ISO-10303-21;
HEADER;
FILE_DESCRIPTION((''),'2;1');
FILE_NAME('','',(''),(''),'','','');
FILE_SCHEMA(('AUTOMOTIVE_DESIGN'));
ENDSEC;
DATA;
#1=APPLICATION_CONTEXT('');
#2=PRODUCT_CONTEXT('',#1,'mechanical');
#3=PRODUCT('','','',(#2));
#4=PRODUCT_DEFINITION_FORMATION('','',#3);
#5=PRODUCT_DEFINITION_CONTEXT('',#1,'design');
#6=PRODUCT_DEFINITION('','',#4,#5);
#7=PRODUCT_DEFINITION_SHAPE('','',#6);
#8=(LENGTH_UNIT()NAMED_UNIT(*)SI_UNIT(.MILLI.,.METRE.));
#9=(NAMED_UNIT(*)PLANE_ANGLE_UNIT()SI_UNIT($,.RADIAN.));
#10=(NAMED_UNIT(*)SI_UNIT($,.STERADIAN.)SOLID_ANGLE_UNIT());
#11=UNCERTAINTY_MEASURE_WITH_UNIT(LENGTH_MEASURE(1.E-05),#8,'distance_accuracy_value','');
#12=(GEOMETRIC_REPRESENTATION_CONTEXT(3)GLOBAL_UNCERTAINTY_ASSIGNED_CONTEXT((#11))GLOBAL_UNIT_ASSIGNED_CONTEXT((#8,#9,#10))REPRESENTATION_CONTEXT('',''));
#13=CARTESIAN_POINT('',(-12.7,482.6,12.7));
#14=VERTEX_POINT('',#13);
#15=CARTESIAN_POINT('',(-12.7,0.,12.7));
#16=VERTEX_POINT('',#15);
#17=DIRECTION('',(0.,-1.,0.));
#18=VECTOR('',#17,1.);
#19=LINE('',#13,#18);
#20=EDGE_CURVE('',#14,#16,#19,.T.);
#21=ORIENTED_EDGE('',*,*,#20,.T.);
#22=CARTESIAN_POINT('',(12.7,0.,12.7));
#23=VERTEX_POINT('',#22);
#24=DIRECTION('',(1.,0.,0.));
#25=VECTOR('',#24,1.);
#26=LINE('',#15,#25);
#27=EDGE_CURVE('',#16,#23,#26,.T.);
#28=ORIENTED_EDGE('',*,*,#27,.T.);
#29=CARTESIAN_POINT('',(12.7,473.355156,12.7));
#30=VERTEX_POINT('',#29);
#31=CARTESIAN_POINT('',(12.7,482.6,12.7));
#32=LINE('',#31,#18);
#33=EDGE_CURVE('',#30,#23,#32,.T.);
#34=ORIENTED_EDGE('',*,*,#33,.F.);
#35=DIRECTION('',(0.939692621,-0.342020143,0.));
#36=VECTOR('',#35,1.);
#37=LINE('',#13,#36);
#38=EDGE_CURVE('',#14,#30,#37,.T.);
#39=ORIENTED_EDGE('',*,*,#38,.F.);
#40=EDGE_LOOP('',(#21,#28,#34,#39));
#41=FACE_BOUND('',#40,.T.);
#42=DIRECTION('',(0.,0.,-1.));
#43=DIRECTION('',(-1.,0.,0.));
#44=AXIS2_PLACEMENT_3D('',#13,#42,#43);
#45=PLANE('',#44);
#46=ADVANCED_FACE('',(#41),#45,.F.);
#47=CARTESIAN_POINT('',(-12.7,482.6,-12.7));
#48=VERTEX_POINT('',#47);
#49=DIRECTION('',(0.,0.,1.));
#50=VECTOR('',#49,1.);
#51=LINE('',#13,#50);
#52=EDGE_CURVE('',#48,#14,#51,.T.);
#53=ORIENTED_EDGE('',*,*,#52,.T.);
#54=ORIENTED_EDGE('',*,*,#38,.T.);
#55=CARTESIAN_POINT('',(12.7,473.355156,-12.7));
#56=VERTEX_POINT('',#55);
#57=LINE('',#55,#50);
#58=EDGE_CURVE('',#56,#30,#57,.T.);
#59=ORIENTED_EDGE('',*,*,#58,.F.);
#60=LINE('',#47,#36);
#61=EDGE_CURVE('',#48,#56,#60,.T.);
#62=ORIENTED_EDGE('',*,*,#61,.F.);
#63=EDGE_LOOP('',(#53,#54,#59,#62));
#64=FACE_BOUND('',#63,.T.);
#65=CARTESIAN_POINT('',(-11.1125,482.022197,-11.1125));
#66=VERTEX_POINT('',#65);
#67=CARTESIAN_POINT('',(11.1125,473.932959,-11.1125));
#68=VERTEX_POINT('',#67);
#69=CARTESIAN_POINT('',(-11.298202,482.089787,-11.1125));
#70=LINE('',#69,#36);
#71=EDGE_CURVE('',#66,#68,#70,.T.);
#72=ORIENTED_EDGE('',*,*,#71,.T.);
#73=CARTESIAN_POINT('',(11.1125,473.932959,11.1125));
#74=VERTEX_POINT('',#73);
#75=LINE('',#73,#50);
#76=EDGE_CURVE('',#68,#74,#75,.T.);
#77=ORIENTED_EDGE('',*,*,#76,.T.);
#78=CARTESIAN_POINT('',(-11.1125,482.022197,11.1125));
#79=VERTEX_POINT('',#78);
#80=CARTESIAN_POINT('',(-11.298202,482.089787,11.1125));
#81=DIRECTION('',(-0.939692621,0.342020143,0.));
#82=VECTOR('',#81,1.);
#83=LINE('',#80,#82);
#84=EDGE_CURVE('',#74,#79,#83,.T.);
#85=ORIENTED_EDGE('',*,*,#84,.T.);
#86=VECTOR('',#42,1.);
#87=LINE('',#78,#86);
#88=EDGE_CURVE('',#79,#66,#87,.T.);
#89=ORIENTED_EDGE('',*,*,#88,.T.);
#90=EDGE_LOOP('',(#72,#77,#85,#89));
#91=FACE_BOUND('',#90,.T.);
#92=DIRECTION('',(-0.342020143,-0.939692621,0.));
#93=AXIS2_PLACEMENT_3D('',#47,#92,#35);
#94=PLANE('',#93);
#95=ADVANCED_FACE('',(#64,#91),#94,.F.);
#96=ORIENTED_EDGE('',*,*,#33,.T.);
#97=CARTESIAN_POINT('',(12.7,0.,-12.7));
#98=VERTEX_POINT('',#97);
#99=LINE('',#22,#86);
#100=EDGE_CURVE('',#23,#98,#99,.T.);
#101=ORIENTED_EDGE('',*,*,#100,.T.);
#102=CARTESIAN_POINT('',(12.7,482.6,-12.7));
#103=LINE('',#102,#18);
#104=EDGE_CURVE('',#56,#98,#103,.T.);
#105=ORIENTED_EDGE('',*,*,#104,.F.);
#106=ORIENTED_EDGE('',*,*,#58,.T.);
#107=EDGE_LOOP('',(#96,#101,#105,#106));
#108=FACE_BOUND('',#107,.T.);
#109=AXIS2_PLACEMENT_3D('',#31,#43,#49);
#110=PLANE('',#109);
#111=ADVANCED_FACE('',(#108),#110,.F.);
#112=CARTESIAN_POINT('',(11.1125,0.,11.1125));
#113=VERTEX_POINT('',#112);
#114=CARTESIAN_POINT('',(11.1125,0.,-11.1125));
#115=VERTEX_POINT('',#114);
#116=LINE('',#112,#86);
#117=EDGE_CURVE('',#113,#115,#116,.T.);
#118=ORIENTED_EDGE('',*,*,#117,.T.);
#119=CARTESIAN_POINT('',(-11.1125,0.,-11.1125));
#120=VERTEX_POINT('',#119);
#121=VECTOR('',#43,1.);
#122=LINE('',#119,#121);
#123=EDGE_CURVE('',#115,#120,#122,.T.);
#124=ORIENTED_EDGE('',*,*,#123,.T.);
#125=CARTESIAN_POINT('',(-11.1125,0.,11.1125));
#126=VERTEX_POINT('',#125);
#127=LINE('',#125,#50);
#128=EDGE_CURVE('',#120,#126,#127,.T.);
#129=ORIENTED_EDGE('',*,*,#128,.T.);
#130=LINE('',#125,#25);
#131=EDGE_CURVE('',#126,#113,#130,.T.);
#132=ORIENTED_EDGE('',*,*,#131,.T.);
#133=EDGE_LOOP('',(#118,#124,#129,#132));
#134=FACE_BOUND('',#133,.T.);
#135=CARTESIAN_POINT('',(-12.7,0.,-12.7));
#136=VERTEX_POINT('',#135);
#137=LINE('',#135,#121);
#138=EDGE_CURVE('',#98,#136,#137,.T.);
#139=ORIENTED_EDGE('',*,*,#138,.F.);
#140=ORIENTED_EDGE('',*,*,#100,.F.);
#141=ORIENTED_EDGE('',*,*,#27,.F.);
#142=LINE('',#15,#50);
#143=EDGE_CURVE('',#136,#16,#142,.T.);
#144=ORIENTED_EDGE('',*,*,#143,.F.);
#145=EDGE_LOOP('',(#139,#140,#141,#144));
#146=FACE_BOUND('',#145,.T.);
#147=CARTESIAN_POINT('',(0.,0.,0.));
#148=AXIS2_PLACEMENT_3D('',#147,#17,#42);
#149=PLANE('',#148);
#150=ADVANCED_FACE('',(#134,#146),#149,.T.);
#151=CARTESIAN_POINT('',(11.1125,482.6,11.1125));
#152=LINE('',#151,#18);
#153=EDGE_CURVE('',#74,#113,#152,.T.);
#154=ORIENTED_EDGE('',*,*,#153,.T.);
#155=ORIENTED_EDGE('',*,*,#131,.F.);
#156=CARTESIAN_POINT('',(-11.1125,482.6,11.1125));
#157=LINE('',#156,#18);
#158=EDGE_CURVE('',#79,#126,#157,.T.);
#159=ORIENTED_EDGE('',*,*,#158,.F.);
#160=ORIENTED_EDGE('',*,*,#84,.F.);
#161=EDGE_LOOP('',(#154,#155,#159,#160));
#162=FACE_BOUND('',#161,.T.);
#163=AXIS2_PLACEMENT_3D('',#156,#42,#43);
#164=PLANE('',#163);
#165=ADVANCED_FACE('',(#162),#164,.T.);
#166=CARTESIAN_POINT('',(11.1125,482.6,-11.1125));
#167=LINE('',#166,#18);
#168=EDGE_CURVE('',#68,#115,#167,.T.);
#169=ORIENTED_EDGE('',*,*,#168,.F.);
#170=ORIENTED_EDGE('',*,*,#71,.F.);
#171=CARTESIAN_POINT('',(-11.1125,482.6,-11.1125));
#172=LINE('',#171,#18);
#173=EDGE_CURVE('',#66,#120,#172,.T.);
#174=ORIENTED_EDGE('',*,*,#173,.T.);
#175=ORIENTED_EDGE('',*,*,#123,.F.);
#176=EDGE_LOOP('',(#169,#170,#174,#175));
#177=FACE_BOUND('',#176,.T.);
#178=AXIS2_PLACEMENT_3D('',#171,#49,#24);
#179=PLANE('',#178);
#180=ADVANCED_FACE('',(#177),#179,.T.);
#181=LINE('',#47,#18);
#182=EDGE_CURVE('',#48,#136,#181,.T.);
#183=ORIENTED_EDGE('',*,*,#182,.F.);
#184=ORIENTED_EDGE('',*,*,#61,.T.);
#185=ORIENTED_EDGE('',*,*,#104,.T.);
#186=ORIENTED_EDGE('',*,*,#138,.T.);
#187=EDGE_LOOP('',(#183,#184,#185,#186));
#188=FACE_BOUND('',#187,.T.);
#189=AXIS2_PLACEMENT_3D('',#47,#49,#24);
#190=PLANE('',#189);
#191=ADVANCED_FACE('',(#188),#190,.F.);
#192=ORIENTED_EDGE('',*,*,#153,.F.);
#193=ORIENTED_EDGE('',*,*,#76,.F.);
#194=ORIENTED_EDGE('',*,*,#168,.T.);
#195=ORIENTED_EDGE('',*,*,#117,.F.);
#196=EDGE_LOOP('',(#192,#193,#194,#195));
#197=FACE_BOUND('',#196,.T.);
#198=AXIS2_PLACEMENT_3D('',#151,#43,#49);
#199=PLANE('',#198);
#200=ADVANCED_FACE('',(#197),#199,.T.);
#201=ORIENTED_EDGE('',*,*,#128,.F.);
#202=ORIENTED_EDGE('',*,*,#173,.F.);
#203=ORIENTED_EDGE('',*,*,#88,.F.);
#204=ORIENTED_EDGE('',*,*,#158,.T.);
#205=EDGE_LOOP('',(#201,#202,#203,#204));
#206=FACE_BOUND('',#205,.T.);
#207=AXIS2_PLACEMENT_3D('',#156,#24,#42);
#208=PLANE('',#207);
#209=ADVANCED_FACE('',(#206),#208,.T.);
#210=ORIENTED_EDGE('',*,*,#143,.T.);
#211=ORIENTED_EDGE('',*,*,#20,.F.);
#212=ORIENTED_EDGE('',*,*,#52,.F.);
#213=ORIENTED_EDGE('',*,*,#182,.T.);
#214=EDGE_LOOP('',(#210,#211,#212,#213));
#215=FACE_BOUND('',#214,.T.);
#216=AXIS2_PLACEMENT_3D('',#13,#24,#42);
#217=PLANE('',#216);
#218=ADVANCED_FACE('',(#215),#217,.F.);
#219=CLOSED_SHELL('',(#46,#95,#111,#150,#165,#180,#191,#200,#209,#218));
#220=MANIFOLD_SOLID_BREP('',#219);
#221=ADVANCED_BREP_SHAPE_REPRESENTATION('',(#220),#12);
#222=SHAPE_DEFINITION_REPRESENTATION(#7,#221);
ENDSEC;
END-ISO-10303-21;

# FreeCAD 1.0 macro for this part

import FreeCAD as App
import Part
import Sketcher
from FreeCAD import Vector
Q = App.Units.Quantity


def add_polygon(sketch, points):
    """Adds a closed chain of lines whose ends are joined by coincident constraints."""
    first, n = sketch.GeometryCount, len(points)
    for a, b in zip(points, points[1:] + points[:1]):
        sketch.addGeometry(Part.LineSegment(App.Vector(*a, 0), App.Vector(*b, 0)), False)
    for i in range(n):
        sketch.addConstraint(Sketcher.Constraint("Coincident", first + i, 2, first + (i + 1) % n, 1))

doc = App.newDocument("Part")
body = doc.addObject("PartDesign::Body", "Body")

# Sketch on XZ plane
sketch1 = body.newObject("Sketcher::SketchObject", "Sketch")
sketch1.AttachmentSupport = (doc.getObject("XZ_Plane"), [""])
sketch1.MapMode = "FlatFace"
add_polygon(sketch1, [(-13, -13), (-13, 13), (13, 13), (13, -13)])  # lines 0-3
add_polygon(sketch1, [(11, 11), (-11, 11), (-11, -11), (11, -11)])  # lines 4-7
sketch1.addConstraint([
    Sketcher.Constraint("Vertical", 0),
    Sketcher.Constraint("Horizontal", 1),
    Sketcher.Constraint("Vertical", 2),
    Sketcher.Constraint("Horizontal", 3),
    Sketcher.Constraint("Horizontal", 4),
    Sketcher.Constraint("Vertical", 5),
    Sketcher.Constraint("Horizontal", 6),
    Sketcher.Constraint("Vertical", 7),
    Sketcher.Constraint("Symmetric", 0, 2, 2, 2, -1, 1),
    Sketcher.Constraint("Symmetric", 4, 2, 6, 2, -1, 1),
    Sketcher.Constraint("Equal", 3, 0),
    Sketcher.Constraint("Equal", 6, 5),
    Sketcher.Constraint("DistanceX", 1, 1, 1, 2, Q("1 in")),
    Sketcher.Constraint("DistanceX", 4, 2, 4, 1, Q("0.875 in")),
])
pad1 = body.newObject("PartDesign::Pad", "Pad")
pad1.Profile = sketch1
pad1.Length = Q("19 in")
pad1.Reversed = True

# Sketch on XY plane
sketch2 = body.newObject("Sketcher::SketchObject", "Sketch001")
sketch2.AttachmentSupport = (doc.getObject("XY_Plane"), [""])
sketch2.MapMode = "FlatFace"
sketch2.AttachmentOffset = App.Placement(Vector(0, 0, 0.5 * 25.4), App.Rotation())
add_polygon(sketch2, [(-13, 483), (13, 473), (13, 483)])  # lines 0-2
sketch2.addConstraint([
    Sketcher.Constraint("Vertical", 1),
    Sketcher.Constraint("Horizontal", 2),
    Sketcher.Constraint("DistanceX", 2, 2, 2, 1, Q("1 in")),
    Sketcher.Constraint("DistanceY", -1, 1, 1, 2, Q("19 in")),
    Sketcher.Constraint("Angle", 0, Q("-20 deg")),
    Sketcher.Constraint("DistanceX", -1, 1, 0, 2, Q("0.5 in")),
])
pocket1 = body.newObject("PartDesign::Pocket", "Pocket")
pocket1.Profile = sketch2
pocket1.Length = Q("1 in")

doc.recompute()
